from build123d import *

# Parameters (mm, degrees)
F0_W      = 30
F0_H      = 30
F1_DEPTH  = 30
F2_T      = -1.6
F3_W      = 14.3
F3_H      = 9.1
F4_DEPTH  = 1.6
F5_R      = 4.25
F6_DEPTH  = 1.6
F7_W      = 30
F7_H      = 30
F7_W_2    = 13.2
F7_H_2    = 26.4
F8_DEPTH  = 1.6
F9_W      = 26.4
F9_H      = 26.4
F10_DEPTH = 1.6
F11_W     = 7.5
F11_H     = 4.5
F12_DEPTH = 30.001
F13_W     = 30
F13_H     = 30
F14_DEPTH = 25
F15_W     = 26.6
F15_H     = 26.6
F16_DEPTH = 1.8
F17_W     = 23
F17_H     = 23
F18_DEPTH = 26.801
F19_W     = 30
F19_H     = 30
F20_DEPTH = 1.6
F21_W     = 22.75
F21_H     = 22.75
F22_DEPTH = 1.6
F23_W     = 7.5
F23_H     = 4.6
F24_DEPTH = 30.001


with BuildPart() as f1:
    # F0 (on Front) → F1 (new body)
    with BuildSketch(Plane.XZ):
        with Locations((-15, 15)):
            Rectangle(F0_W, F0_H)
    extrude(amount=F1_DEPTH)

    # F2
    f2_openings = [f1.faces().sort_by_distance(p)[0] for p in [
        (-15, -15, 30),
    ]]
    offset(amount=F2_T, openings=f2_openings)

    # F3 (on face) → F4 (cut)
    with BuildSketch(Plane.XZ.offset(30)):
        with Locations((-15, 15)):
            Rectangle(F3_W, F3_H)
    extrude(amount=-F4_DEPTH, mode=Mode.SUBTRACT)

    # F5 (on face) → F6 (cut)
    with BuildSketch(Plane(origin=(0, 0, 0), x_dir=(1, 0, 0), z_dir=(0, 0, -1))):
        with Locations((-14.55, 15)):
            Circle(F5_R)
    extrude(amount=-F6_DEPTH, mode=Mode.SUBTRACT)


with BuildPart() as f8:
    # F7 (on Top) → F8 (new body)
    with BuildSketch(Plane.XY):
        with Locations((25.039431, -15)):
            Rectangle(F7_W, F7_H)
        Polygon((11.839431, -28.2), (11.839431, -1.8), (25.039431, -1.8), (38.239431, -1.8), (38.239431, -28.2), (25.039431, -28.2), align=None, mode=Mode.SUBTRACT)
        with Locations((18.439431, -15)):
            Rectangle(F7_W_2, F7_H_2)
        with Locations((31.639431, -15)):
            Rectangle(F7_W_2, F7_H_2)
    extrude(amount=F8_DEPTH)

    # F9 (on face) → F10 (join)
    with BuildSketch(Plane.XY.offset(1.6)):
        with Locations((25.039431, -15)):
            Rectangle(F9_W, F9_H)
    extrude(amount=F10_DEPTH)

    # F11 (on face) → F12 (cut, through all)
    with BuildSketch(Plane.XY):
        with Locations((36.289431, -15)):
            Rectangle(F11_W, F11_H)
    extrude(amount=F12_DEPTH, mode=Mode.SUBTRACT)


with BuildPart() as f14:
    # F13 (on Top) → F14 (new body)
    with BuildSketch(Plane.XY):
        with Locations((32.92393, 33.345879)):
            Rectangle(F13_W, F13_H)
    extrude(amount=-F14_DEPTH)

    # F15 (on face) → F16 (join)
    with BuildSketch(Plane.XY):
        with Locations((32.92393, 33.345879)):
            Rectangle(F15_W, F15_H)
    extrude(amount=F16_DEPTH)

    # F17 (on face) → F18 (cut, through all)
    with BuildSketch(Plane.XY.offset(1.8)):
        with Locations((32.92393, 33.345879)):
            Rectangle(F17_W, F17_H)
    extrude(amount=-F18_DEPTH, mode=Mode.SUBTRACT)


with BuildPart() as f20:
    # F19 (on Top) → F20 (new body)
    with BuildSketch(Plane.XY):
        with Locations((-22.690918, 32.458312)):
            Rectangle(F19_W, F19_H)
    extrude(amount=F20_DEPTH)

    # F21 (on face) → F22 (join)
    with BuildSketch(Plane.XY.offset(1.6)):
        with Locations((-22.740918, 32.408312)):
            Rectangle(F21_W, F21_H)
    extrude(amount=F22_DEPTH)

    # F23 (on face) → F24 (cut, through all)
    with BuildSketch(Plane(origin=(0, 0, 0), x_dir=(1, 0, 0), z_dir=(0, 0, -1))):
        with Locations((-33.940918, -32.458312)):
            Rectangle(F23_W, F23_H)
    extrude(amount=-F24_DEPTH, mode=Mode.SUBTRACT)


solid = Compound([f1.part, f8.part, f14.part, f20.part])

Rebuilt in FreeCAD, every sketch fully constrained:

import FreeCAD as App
import Part
import Sketcher
from FreeCAD import Vector
Q = App.Units.Quantity


def faces_at(feature, points):
    """Names of the faces that lie closest to the given points."""
    faces = feature.Shape.Faces
    near = lambda p: min(range(len(faces)), key=lambda i: faces[i].distToShape(Part.Vertex(*p))[0])
    return sorted({f"Face{near(p) + 1}" for p in points})

doc = App.newDocument("Part")
params = doc.addObject("Spreadsheet::Sheet", "Params")
for row, (alias, value) in enumerate([
    ("sketch1_width", "30 mm"),
    ("pad1_length", "30 mm"),
    ("thickness_wall", "1.6 mm"),
    ("sketch2_width", "14.3 mm"),
    ("sketch2_height", "9.1 mm"),
    ("pocket1_length", "1.6 mm"),
    ("sketch3_diameter", "8.5 mm"),
    ("pocket2_length", "1.6 mm"),
    ("sketch4_width", "30 mm"),
    ("pad2_length", "1.6 mm"),
    ("sketch5_width", "26.4 mm"),
    ("pad3_length", "1.6 mm"),
    ("sketch6_width", "7.5 mm"),
    ("sketch6_height", "4.5 mm"),
    ("sketch7_width", "30 mm"),
    ("pad4_length", "25 mm"),
    ("sketch8_width", "26.6 mm"),
    ("pad5_length", "1.8 mm"),
    ("sketch9_width", "23 mm"),
    ("sketch10_width", "30 mm"),
    ("pad6_length", "1.6 mm"),
    ("sketch11_width", "22.75 mm"),
    ("pad7_length", "1.6 mm"),
    ("sketch12_width", "7.5 mm"),
    ("sketch12_height", "4.6 mm"),
], start=1):
    params.set(f"A{row}", alias)
    params.set(f"B{row}", "=" + value)
    params.setAlias(f"B{row}", alias)

body = doc.addObject("PartDesign::Body", "Body")

sketch1 = doc.addObject("Sketcher::SketchObject", "Sketch")
body.addObject(sketch1)
sketch1.AttachmentSupport = (doc.XZ_Plane, [""])
sketch1.MapMode = "FlatFace"
sketch1.addGeometry(Part.LineSegment(Vector(-30, 30, 0), Vector(-30, 0, 0)), False)
sketch1.addGeometry(Part.LineSegment(Vector(-30, 0, 0), Vector(0, 0, 0)), False)
sketch1.addGeometry(Part.LineSegment(Vector(0, 0, 0), Vector(0, 30, 0)), False)
sketch1.addGeometry(Part.LineSegment(Vector(0, 30, 0), Vector(-30, 30, 0)), False)
sketch1.addConstraint(Sketcher.Constraint("Coincident", 0, 2, 1, 1))
sketch1.addConstraint(Sketcher.Constraint("Coincident", 1, 2, 2, 1))
sketch1.addConstraint(Sketcher.Constraint("Coincident", 2, 2, 3, 1))
sketch1.addConstraint(Sketcher.Constraint("Coincident", 3, 2, 0, 1))
sketch1.addConstraint(Sketcher.Constraint("Vertical", 0))
sketch1.addConstraint(Sketcher.Constraint("Horizontal", 1))
sketch1.addConstraint(Sketcher.Constraint("Vertical", 2))
sketch1.addConstraint(Sketcher.Constraint("Horizontal", 3))
sketch1.addConstraint(Sketcher.Constraint("Coincident", 1, 2, -1, 1))
sketch1.addConstraint(Sketcher.Constraint("Equal", 3, 0))
sketch1.addConstraint(Sketcher.Constraint("DistanceX", 1, 1, 1, 2, Q("30 mm")))
sketch1.setExpression("Constraints[10]", "Params.sketch1_width")
pad1 = doc.addObject("PartDesign::Pad", "Pad")
body.addObject(pad1)
pad1.Profile = sketch1
pad1.setExpression("Length", "Params.pad1_length")
doc.recompute()

thickness = doc.addObject("PartDesign::Thickness", "Thickness")
body.addObject(thickness)
thickness.Base = (pad1, faces_at(pad1, [(-15, -15, 30)]))
thickness.setExpression("Value", "Params.thickness_wall")
thickness.Reversed = True
thickness.Join = "Arc"

sketch2 = doc.addObject("Sketcher::SketchObject", "Sketch001")
body.addObject(sketch2)
sketch2.AttachmentSupport = (doc.XZ_Plane, [""])
sketch2.MapMode = "FlatFace"
sketch2.AttachmentOffset = App.Placement(Vector(0, 0, 30), App.Rotation())
sketch2.addGeometry(Part.LineSegment(Vector(-22, 20, 0), Vector(-22, 10, 0)), False)
sketch2.addGeometry(Part.LineSegment(Vector(-22, 10, 0), Vector(-8, 10, 0)), False)
sketch2.addGeometry(Part.LineSegment(Vector(-8, 10, 0), Vector(-8, 20, 0)), False)
sketch2.addGeometry(Part.LineSegment(Vector(-8, 20, 0), Vector(-22, 20, 0)), False)
sketch2.addConstraint(Sketcher.Constraint("Coincident", 0, 2, 1, 1))
sketch2.addConstraint(Sketcher.Constraint("Coincident", 1, 2, 2, 1))
sketch2.addConstraint(Sketcher.Constraint("Coincident", 2, 2, 3, 1))
sketch2.addConstraint(Sketcher.Constraint("Coincident", 3, 2, 0, 1))
sketch2.addConstraint(Sketcher.Constraint("Vertical", 0))
sketch2.addConstraint(Sketcher.Constraint("Horizontal", 1))
sketch2.addConstraint(Sketcher.Constraint("Vertical", 2))
sketch2.addConstraint(Sketcher.Constraint("Horizontal", 3))
sketch2.addConstraint(Sketcher.Constraint("DistanceX", 1, 1, 1, 2, Q("14.3 mm")))
sketch2.addConstraint(Sketcher.Constraint("DistanceY", 0, 2, 0, 1, Q("9.1 mm")))
sketch2.addConstraint(Sketcher.Constraint("DistanceX", 0, 2, -1, 1, Q("22.15 mm")))
sketch2.addConstraint(Sketcher.Constraint("DistanceY", -1, 1, 0, 2, Q("10.45 mm")))
sketch2.setExpression("Constraints[8]", "Params.sketch2_width")
sketch2.setExpression("Constraints[9]", "Params.sketch2_height")
pocket1 = doc.addObject("PartDesign::Pocket", "Pocket")
body.addObject(pocket1)
pocket1.Profile = sketch2
pocket1.setExpression("Length", "Params.pocket1_length")

sketch3 = doc.addObject("Sketcher::SketchObject", "Sketch002")
body.addObject(sketch3)
sketch3.AttachmentSupport = (doc.XY_Plane, [""])
sketch3.MapMode = "FlatFace"
sketch3.addGeometry(Part.Circle(Vector(-14.6, -15, 0), Vector(0, 0, 1), 4.2), False)
sketch3.addConstraint(Sketcher.Constraint("Diameter", 0, Q("8.5 mm")))
sketch3.addConstraint(Sketcher.Constraint("DistanceY", 0, 3, -1, 1, Q("15 mm")))
sketch3.addConstraint(Sketcher.Constraint("DistanceX", 0, 3, -1, 1, Q("14.55 mm")))
sketch3.setExpression("Constraints[0]", "Params.sketch3_diameter")
pocket2 = doc.addObject("PartDesign::Pocket", "Pocket001")
body.addObject(pocket2)
pocket2.Profile = sketch3
pocket2.setExpression("Length", "Params.pocket2_length")
pocket2.Reversed = True
body2 = doc.addObject("PartDesign::Body", "Body001")

sketch4 = doc.addObject("Sketcher::SketchObject", "Sketch003")
body2.addObject(sketch4)
sketch4.AttachmentSupport = (doc.getObject("XY_Plane001"), [""])
sketch4.MapMode = "FlatFace"
sketch4.addGeometry(Part.LineSegment(Vector(10, 0, 0), Vector(10, -30, 0)), False)
sketch4.addGeometry(Part.LineSegment(Vector(10, -30, 0), Vector(40, -30, 0)), False)
sketch4.addGeometry(Part.LineSegment(Vector(40, -30, 0), Vector(40, 0, 0)), False)
sketch4.addGeometry(Part.LineSegment(Vector(40, 0, 0), Vector(10, 0, 0)), False)
sketch4.addConstraint(Sketcher.Constraint("Coincident", 0, 2, 1, 1))
sketch4.addConstraint(Sketcher.Constraint("Coincident", 1, 2, 2, 1))
sketch4.addConstraint(Sketcher.Constraint("Coincident", 2, 2, 3, 1))
sketch4.addConstraint(Sketcher.Constraint("Coincident", 3, 2, 0, 1))
sketch4.addConstraint(Sketcher.Constraint("Vertical", 0))
sketch4.addConstraint(Sketcher.Constraint("Horizontal", 1))
sketch4.addConstraint(Sketcher.Constraint("Vertical", 2))
sketch4.addConstraint(Sketcher.Constraint("Horizontal", 3))
sketch4.addConstraint(Sketcher.Constraint("PointOnObject", 2, 2, -1))
sketch4.addConstraint(Sketcher.Constraint("Equal", 3, 0))
sketch4.addConstraint(Sketcher.Constraint("DistanceX", 1, 1, 1, 2, Q("30 mm")))
sketch4.addConstraint(Sketcher.Constraint("DistanceX", -1, 1, 0, 2, Q("10.039431 mm")))
sketch4.setExpression("Constraints[10]", "Params.sketch4_width")
pad2 = doc.addObject("PartDesign::Pad", "Pad001")
body2.addObject(pad2)
pad2.Profile = sketch4
pad2.setExpression("Length", "Params.pad2_length")

sketch5 = doc.addObject("Sketcher::SketchObject", "Sketch004")
body2.addObject(sketch5)
sketch5.AttachmentSupport = (doc.getObject("XY_Plane001"), [""])
sketch5.MapMode = "FlatFace"
sketch5.AttachmentOffset = App.Placement(Vector(0, 0, 1.6), App.Rotation())
sketch5.addGeometry(Part.LineSegment(Vector(12, -2, 0), Vector(12, -28, 0)), False)
sketch5.addGeometry(Part.LineSegment(Vector(12, -28, 0), Vector(38, -28, 0)), False)
sketch5.addGeometry(Part.LineSegment(Vector(38, -28, 0), Vector(38, -2, 0)), False)
sketch5.addGeometry(Part.LineSegment(Vector(38, -2, 0), Vector(12, -2, 0)), False)
sketch5.addConstraint(Sketcher.Constraint("Coincident", 0, 2, 1, 1))
sketch5.addConstraint(Sketcher.Constraint("Coincident", 1, 2, 2, 1))
sketch5.addConstraint(Sketcher.Constraint("Coincident", 2, 2, 3, 1))
sketch5.addConstraint(Sketcher.Constraint("Coincident", 3, 2, 0, 1))
sketch5.addConstraint(Sketcher.Constraint("Vertical", 0))
sketch5.addConstraint(Sketcher.Constraint("Horizontal", 1))
sketch5.addConstraint(Sketcher.Constraint("Vertical", 2))
sketch5.addConstraint(Sketcher.Constraint("Horizontal", 3))
sketch5.addConstraint(Sketcher.Constraint("Equal", 3, 0))
sketch5.addConstraint(Sketcher.Constraint("DistanceX", 1, 1, 1, 2, Q("26.4 mm")))
sketch5.addConstraint(Sketcher.Constraint("DistanceY", 0, 2, -1, 1, Q("28.2 mm")))
sketch5.addConstraint(Sketcher.Constraint("DistanceX", -1, 1, 0, 2, Q("11.839431 mm")))
sketch5.setExpression("Constraints[9]", "Params.sketch5_width")
pad3 = doc.addObject("PartDesign::Pad", "Pad002")
body2.addObject(pad3)
pad3.Profile = sketch5
pad3.setExpression("Length", "Params.pad3_length")

sketch6 = doc.addObject("Sketcher::SketchObject", "Sketch005")
body2.addObject(sketch6)
sketch6.AttachmentSupport = (doc.getObject("XY_Plane001"), [""])
sketch6.MapMode = "FlatFace"
sketch6.addGeometry(Part.LineSegment(Vector(32.5, -12.8, 0), Vector(32.5, -17.2, 0)), False)
sketch6.addGeometry(Part.LineSegment(Vector(32.5, -17.2, 0), Vector(40, -17.2, 0)), False)
sketch6.addGeometry(Part.LineSegment(Vector(40, -17.2, 0), Vector(40, -12.8, 0)), False)
sketch6.addGeometry(Part.LineSegment(Vector(40, -12.8, 0), Vector(32.5, -12.8, 0)), False)
sketch6.addConstraint(Sketcher.Constraint("Coincident", 0, 2, 1, 1))
sketch6.addConstraint(Sketcher.Constraint("Coincident", 1, 2, 2, 1))
sketch6.addConstraint(Sketcher.Constraint("Coincident", 2, 2, 3, 1))
sketch6.addConstraint(Sketcher.Constraint("Coincident", 3, 2, 0, 1))
sketch6.addConstraint(Sketcher.Constraint("Vertical", 0))
sketch6.addConstraint(Sketcher.Constraint("Horizontal", 1))
sketch6.addConstraint(Sketcher.Constraint("Vertical", 2))
sketch6.addConstraint(Sketcher.Constraint("Horizontal", 3))
sketch6.addConstraint(Sketcher.Constraint("DistanceX", 1, 1, 1, 2, Q("7.5 mm")))
sketch6.addConstraint(Sketcher.Constraint("DistanceY", 0, 2, 0, 1, Q("4.5 mm")))
sketch6.addConstraint(Sketcher.Constraint("DistanceY", 0, 2, -1, 1, Q("17.25 mm")))
sketch6.addConstraint(Sketcher.Constraint("DistanceX", -1, 1, 0, 2, Q("32.539431 mm")))
sketch6.setExpression("Constraints[8]", "Params.sketch6_width")
sketch6.setExpression("Constraints[9]", "Params.sketch6_height")
pocket3 = doc.addObject("PartDesign::Pocket", "Pocket002")
body2.addObject(pocket3)
pocket3.Profile = sketch6
pocket3.Type = "ThroughAll"
pocket3.Reversed = True
body3 = doc.addObject("PartDesign::Body", "Body002")

sketch7 = doc.addObject("Sketcher::SketchObject", "Sketch006")
body3.addObject(sketch7)
sketch7.AttachmentSupport = (doc.getObject("XY_Plane002"), [""])
sketch7.MapMode = "FlatFace"
sketch7.addGeometry(Part.LineSegment(Vector(18, 48, 0), Vector(18, 18, 0)), False)
sketch7.addGeometry(Part.LineSegment(Vector(18, 18, 0), Vector(48, 18, 0)), False)
sketch7.addGeometry(Part.LineSegment(Vector(48, 18, 0), Vector(48, 48, 0)), False)
sketch7.addGeometry(Part.LineSegment(Vector(48, 48, 0), Vector(18, 48, 0)), False)
sketch7.addConstraint(Sketcher.Constraint("Coincident", 0, 2, 1, 1))
sketch7.addConstraint(Sketcher.Constraint("Coincident", 1, 2, 2, 1))
sketch7.addConstraint(Sketcher.Constraint("Coincident", 2, 2, 3, 1))
sketch7.addConstraint(Sketcher.Constraint("Coincident", 3, 2, 0, 1))
sketch7.addConstraint(Sketcher.Constraint("Vertical", 0))
sketch7.addConstraint(Sketcher.Constraint("Horizontal", 1))
sketch7.addConstraint(Sketcher.Constraint("Vertical", 2))
sketch7.addConstraint(Sketcher.Constraint("Horizontal", 3))
sketch7.addConstraint(Sketcher.Constraint("Equal", 3, 0))
sketch7.addConstraint(Sketcher.Constraint("DistanceX", 1, 1, 1, 2, Q("30 mm")))
sketch7.addConstraint(Sketcher.Constraint("DistanceX", -1, 1, 0, 2, Q("17.92393 mm")))
sketch7.addConstraint(Sketcher.Constraint("DistanceY", -1, 1, 0, 2, Q("18.345879 mm")))
sketch7.setExpression("Constraints[9]", "Params.sketch7_width")
pad4 = doc.addObject("PartDesign::Pad", "Pad003")
body3.addObject(pad4)
pad4.Profile = sketch7
pad4.setExpression("Length", "Params.pad4_length")
pad4.Reversed = True

sketch8 = doc.addObject("Sketcher::SketchObject", "Sketch007")
body3.addObject(sketch8)
sketch8.AttachmentSupport = (doc.getObject("XY_Plane002"), [""])
sketch8.MapMode = "FlatFace"
sketch8.addGeometry(Part.LineSegment(Vector(20, 47, 0), Vector(20, 20, 0)), False)
sketch8.addGeometry(Part.LineSegment(Vector(20, 20, 0), Vector(46, 20, 0)), False)
sketch8.addGeometry(Part.LineSegment(Vector(46, 20, 0), Vector(46, 47, 0)), False)
sketch8.addGeometry(Part.LineSegment(Vector(46, 47, 0), Vector(20, 47, 0)), False)
sketch8.addConstraint(Sketcher.Constraint("Coincident", 0, 2, 1, 1))
sketch8.addConstraint(Sketcher.Constraint("Coincident", 1, 2, 2, 1))
sketch8.addConstraint(Sketcher.Constraint("Coincident", 2, 2, 3, 1))
sketch8.addConstraint(Sketcher.Constraint("Coincident", 3, 2, 0, 1))
sketch8.addConstraint(Sketcher.Constraint("Vertical", 0))
sketch8.addConstraint(Sketcher.Constraint("Horizontal", 1))
sketch8.addConstraint(Sketcher.Constraint("Vertical", 2))
sketch8.addConstraint(Sketcher.Constraint("Horizontal", 3))
sketch8.addConstraint(Sketcher.Constraint("Equal", 3, 0))
sketch8.addConstraint(Sketcher.Constraint("DistanceX", 1, 1, 1, 2, Q("26.6 mm")))
sketch8.addConstraint(Sketcher.Constraint("DistanceX", -1, 1, 0, 2, Q("19.62393 mm")))
sketch8.addConstraint(Sketcher.Constraint("DistanceY", -1, 1, 0, 2, Q("20.045879 mm")))
sketch8.setExpression("Constraints[9]", "Params.sketch8_width")
pad5 = doc.addObject("PartDesign::Pad", "Pad004")
body3.addObject(pad5)
pad5.Profile = sketch8
pad5.setExpression("Length", "Params.pad5_length")

sketch9 = doc.addObject("Sketcher::SketchObject", "Sketch008")
body3.addObject(sketch9)
sketch9.AttachmentSupport = (doc.getObject("XY_Plane002"), [""])
sketch9.MapMode = "FlatFace"
sketch9.AttachmentOffset = App.Placement(Vector(0, 0, 1.8), App.Rotation())
sketch9.addGeometry(Part.LineSegment(Vector(21, 45, 0), Vector(21, 22, 0)), False)
sketch9.addGeometry(Part.LineSegment(Vector(21, 22, 0), Vector(44, 22, 0)), False)
sketch9.addGeometry(Part.LineSegment(Vector(44, 22, 0), Vector(44, 45, 0)), False)
sketch9.addGeometry(Part.LineSegment(Vector(44, 45, 0), Vector(21, 45, 0)), False)
sketch9.addConstraint(Sketcher.Constraint("Coincident", 0, 2, 1, 1))
sketch9.addConstraint(Sketcher.Constraint("Coincident", 1, 2, 2, 1))
sketch9.addConstraint(Sketcher.Constraint("Coincident", 2, 2, 3, 1))
sketch9.addConstraint(Sketcher.Constraint("Coincident", 3, 2, 0, 1))
sketch9.addConstraint(Sketcher.Constraint("Vertical", 0))
sketch9.addConstraint(Sketcher.Constraint("Horizontal", 1))
sketch9.addConstraint(Sketcher.Constraint("Vertical", 2))
sketch9.addConstraint(Sketcher.Constraint("Horizontal", 3))
sketch9.addConstraint(Sketcher.Constraint("Equal", 3, 0))
sketch9.addConstraint(Sketcher.Constraint("DistanceX", 1, 1, 1, 2, Q("23 mm")))
sketch9.addConstraint(Sketcher.Constraint("DistanceX", -1, 1, 0, 2, Q("21.42393 mm")))
sketch9.addConstraint(Sketcher.Constraint("DistanceY", -1, 1, 0, 2, Q("21.845879 mm")))
sketch9.setExpression("Constraints[9]", "Params.sketch9_width")
pocket4 = doc.addObject("PartDesign::Pocket", "Pocket003")
body3.addObject(pocket4)
pocket4.Profile = sketch9
pocket4.Type = "ThroughAll"
body4 = doc.addObject("PartDesign::Body", "Body003")

sketch10 = doc.addObject("Sketcher::SketchObject", "Sketch009")
body4.addObject(sketch10)
sketch10.AttachmentSupport = (doc.getObject("XY_Plane003"), [""])
sketch10.MapMode = "FlatFace"
sketch10.addGeometry(Part.LineSegment(Vector(-38, 47, 0), Vector(-38, 17, 0)), False)
sketch10.addGeometry(Part.LineSegment(Vector(-38, 17, 0), Vector(-8, 17, 0)), False)
sketch10.addGeometry(Part.LineSegment(Vector(-8, 17, 0), Vector(-8, 47, 0)), False)
sketch10.addGeometry(Part.LineSegment(Vector(-8, 47, 0), Vector(-38, 47, 0)), False)
sketch10.addConstraint(Sketcher.Constraint("Coincident", 0, 2, 1, 1))
sketch10.addConstraint(Sketcher.Constraint("Coincident", 1, 2, 2, 1))
sketch10.addConstraint(Sketcher.Constraint("Coincident", 2, 2, 3, 1))
sketch10.addConstraint(Sketcher.Constraint("Coincident", 3, 2, 0, 1))
sketch10.addConstraint(Sketcher.Constraint("Vertical", 0))
sketch10.addConstraint(Sketcher.Constraint("Horizontal", 1))
sketch10.addConstraint(Sketcher.Constraint("Vertical", 2))
sketch10.addConstraint(Sketcher.Constraint("Horizontal", 3))
sketch10.addConstraint(Sketcher.Constraint("Equal", 3, 0))
sketch10.addConstraint(Sketcher.Constraint("DistanceX", 1, 1, 1, 2, Q("30 mm")))
sketch10.addConstraint(Sketcher.Constraint("DistanceX", 0, 2, -1, 1, Q("37.690918 mm")))
sketch10.addConstraint(Sketcher.Constraint("DistanceY", -1, 1, 0, 2, Q("17.458312 mm")))
sketch10.setExpression("Constraints[9]", "Params.sketch10_width")
pad6 = doc.addObject("PartDesign::Pad", "Pad005")
body4.addObject(pad6)
pad6.Profile = sketch10
pad6.setExpression("Length", "Params.pad6_length")

sketch11 = doc.addObject("Sketcher::SketchObject", "Sketch010")
body4.addObject(sketch11)
sketch11.AttachmentSupport = (doc.getObject("XY_Plane003"), [""])
sketch11.MapMode = "FlatFace"
sketch11.AttachmentOffset = App.Placement(Vector(0, 0, 1.6), App.Rotation())
sketch11.addGeometry(Part.LineSegment(Vector(-34, 44, 0), Vector(-34, 21, 0)), False)
sketch11.addGeometry(Part.LineSegment(Vector(-34, 21, 0), Vector(-11, 21, 0)), False)
sketch11.addGeometry(Part.LineSegment(Vector(-11, 21, 0), Vector(-11, 44, 0)), False)
sketch11.addGeometry(Part.LineSegment(Vector(-11, 44, 0), Vector(-34, 44, 0)), False)
sketch11.addConstraint(Sketcher.Constraint("Coincident", 0, 2, 1, 1))
sketch11.addConstraint(Sketcher.Constraint("Coincident", 1, 2, 2, 1))
sketch11.addConstraint(Sketcher.Constraint("Coincident", 2, 2, 3, 1))
sketch11.addConstraint(Sketcher.Constraint("Coincident", 3, 2, 0, 1))
sketch11.addConstraint(Sketcher.Constraint("Vertical", 0))
sketch11.addConstraint(Sketcher.Constraint("Horizontal", 1))
sketch11.addConstraint(Sketcher.Constraint("Vertical", 2))
sketch11.addConstraint(Sketcher.Constraint("Horizontal", 3))
sketch11.addConstraint(Sketcher.Constraint("Equal", 3, 0))
sketch11.addConstraint(Sketcher.Constraint("DistanceX", 1, 1, 1, 2, Q("22.75 mm")))
sketch11.addConstraint(Sketcher.Constraint("DistanceY", -1, 1, 0, 2, Q("21.033312 mm")))
sketch11.addConstraint(Sketcher.Constraint("DistanceX", 1, 2, -1, 1, Q("11.365918 mm")))
sketch11.setExpression("Constraints[9]", "Params.sketch11_width")
pad7 = doc.addObject("PartDesign::Pad", "Pad006")
body4.addObject(pad7)
pad7.Profile = sketch11
pad7.setExpression("Length", "Params.pad7_length")

sketch12 = doc.addObject("Sketcher::SketchObject", "Sketch011")
body4.addObject(sketch12)
sketch12.AttachmentSupport = (doc.getObject("XY_Plane003"), [""])
sketch12.MapMode = "FlatFace"
sketch12.addGeometry(Part.LineSegment(Vector(-37.7, 30.2, 0), Vector(-37.7, 34.8, 0)), False)
sketch12.addGeometry(Part.LineSegment(Vector(-37.7, 34.8, 0), Vector(-30.2, 34.8, 0)), False)
sketch12.addGeometry(Part.LineSegment(Vector(-30.2, 34.8, 0), Vector(-30.2, 30.2, 0)), False)
sketch12.addGeometry(Part.LineSegment(Vector(-30.2, 30.2, 0), Vector(-37.7, 30.2, 0)), False)
sketch12.addConstraint(Sketcher.Constraint("Coincident", 0, 2, 1, 1))
sketch12.addConstraint(Sketcher.Constraint("Coincident", 1, 2, 2, 1))
sketch12.addConstraint(Sketcher.Constraint("Coincident", 2, 2, 3, 1))
sketch12.addConstraint(Sketcher.Constraint("Coincident", 3, 2, 0, 1))
sketch12.addConstraint(Sketcher.Constraint("Vertical", 0))
sketch12.addConstraint(Sketcher.Constraint("Horizontal", 1))
sketch12.addConstraint(Sketcher.Constraint("Vertical", 2))
sketch12.addConstraint(Sketcher.Constraint("Horizontal", 3))
sketch12.addConstraint(Sketcher.Constraint("DistanceX", 1, 1, 1, 2, Q("7.5 mm")))
sketch12.addConstraint(Sketcher.Constraint("DistanceY", 0, 1, 0, 2, Q("4.6 mm")))
sketch12.addConstraint(Sketcher.Constraint("DistanceX", 0, 2, -1, 1, Q("37.690918 mm")))
sketch12.addConstraint(Sketcher.Constraint("DistanceY", -1, 1, 0, 2, Q("34.758312 mm")))
sketch12.setExpression("Constraints[8]", "Params.sketch12_width")
sketch12.setExpression("Constraints[9]", "Params.sketch12_height")
pocket5 = doc.addObject("PartDesign::Pocket", "Pocket004")
body4.addObject(pocket5)
pocket5.Profile = sketch12
pocket5.Type = "ThroughAll"
pocket5.Reversed = True

doc.recompute()
